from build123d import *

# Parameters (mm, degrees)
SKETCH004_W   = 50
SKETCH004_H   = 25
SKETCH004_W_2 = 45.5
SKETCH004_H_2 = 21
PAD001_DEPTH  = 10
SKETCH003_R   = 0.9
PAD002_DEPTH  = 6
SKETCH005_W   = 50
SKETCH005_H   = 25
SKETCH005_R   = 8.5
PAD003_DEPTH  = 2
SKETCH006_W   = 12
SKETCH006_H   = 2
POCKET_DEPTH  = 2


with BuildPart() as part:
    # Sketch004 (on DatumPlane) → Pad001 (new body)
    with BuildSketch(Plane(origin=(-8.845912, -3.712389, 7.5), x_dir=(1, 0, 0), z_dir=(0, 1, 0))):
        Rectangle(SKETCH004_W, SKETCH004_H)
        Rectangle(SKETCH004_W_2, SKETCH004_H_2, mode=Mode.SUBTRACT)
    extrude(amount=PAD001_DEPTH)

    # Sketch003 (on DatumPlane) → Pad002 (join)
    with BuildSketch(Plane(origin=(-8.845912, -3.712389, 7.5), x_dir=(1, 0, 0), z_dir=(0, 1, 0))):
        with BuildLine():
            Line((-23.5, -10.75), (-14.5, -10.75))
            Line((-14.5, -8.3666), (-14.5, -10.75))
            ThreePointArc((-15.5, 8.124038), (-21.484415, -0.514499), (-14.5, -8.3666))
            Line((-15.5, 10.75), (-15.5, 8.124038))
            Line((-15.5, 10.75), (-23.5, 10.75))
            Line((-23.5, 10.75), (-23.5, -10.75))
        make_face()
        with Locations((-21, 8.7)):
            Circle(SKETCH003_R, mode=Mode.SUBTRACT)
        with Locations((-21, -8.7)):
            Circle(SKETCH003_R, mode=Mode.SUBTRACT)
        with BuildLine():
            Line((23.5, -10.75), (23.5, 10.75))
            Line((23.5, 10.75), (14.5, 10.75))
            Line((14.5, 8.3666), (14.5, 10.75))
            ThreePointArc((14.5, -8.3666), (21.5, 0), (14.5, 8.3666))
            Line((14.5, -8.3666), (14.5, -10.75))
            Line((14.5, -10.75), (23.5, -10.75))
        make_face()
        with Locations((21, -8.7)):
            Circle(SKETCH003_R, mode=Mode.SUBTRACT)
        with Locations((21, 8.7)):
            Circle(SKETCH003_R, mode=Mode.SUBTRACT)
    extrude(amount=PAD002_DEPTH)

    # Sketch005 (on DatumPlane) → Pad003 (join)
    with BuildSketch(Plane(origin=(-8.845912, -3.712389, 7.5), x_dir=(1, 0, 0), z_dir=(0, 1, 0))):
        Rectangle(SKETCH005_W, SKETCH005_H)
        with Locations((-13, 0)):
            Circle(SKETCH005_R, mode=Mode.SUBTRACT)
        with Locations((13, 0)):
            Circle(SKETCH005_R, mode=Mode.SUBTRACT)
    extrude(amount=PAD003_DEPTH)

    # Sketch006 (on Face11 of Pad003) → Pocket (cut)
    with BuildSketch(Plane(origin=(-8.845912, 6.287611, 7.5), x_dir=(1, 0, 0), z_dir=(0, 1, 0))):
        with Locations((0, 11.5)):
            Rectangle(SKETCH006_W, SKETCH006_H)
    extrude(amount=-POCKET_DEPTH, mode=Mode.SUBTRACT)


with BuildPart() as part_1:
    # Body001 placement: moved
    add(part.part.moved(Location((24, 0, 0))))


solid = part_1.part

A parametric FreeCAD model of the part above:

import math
import FreeCAD as App
import Part
import Sketcher
from FreeCAD import Vector
Q = App.Units.Quantity

doc = App.newDocument("Part")
body = doc.addObject("PartDesign::Body", "Body")

# Sketch on XZ plane
sketch1 = doc.addObject("Sketcher::SketchObject", "Sketch")
body.addObject(sketch1)
sketch1.AttachmentSupport = (doc.XZ_Plane, [""])
sketch1.MapMode = "FlatFace"
sketch1.AttachmentOffset = App.Placement(Vector(0, 0, 3.712389), App.Rotation())
sketch1.addGeometry([
    Part.LineSegment(Vector(-34, -5, 0), Vector(-34, 20, 0)),  # 0
    Part.LineSegment(Vector(-34, 20, 0), Vector(16, 20, 0)),  # 1
    Part.LineSegment(Vector(16, 20, 0), Vector(16, -5, 0)),  # 2
    Part.LineSegment(Vector(16, -5, 0), Vector(-34, -5, 0)),  # 3
    Part.LineSegment(Vector(14, 18, 0), Vector(-32, 18, 0)),  # 4
    Part.LineSegment(Vector(-32, 18, 0), Vector(-32, -3, 0)),  # 5
    Part.LineSegment(Vector(-32, -3, 0), Vector(14, -3, 0)),  # 6
    Part.LineSegment(Vector(14, -3, 0), Vector(14, 18, 0)),  # 7
], False)
sketch1.addConstraint([
    Sketcher.Constraint("Coincident", 0, 2, 1, 1),
    Sketcher.Constraint("Coincident", 1, 2, 2, 1),
    Sketcher.Constraint("Coincident", 2, 2, 3, 1),
    Sketcher.Constraint("Coincident", 3, 2, 0, 1),
    Sketcher.Constraint("Coincident", 4, 2, 5, 1),
    Sketcher.Constraint("Coincident", 5, 2, 6, 1),
    Sketcher.Constraint("Coincident", 6, 2, 7, 1),
    Sketcher.Constraint("Coincident", 7, 2, 4, 1),
    Sketcher.Constraint("Vertical", 0),
    Sketcher.Constraint("Horizontal", 1),
    Sketcher.Constraint("Vertical", 2),
    Sketcher.Constraint("Horizontal", 3),
    Sketcher.Constraint("Horizontal", 4),
    Sketcher.Constraint("Vertical", 5),
    Sketcher.Constraint("Horizontal", 6),
    Sketcher.Constraint("Vertical", 7),
    Sketcher.Constraint("DistanceX", 1, 1, 1, 2, Q("50 mm")),
    Sketcher.Constraint("DistanceY", 0, 1, 0, 2, Q("25 mm")),
    Sketcher.Constraint("DistanceY", 5, 2, 5, 1, Q("21 mm")),
    Sketcher.Constraint("DistanceX", 4, 2, 4, 1, Q("45.5 mm")),
    Sketcher.Constraint("DistanceY", -1, 1, 0, 2, Q("20 mm")),
    Sketcher.Constraint("DistanceY", -1, 1, 4, 2, Q("18 mm")),
    Sketcher.Constraint("DistanceX", 0, 2, 4, 2, Q("2.25 mm")),
    Sketcher.Constraint("DistanceX", 0, 2, -1, 1, Q("33.845912 mm")),
])
pad1 = doc.addObject("PartDesign::Pad", "Pad")
body.addObject(pad1)
pad1.Profile = sketch1
pad1.Length = 10
pad1.Reversed = True

# Sketch on XZ plane
sketch2 = doc.addObject("Sketcher::SketchObject", "Sketch001")
body.addObject(sketch2)
sketch2.AttachmentSupport = (doc.XZ_Plane, [""])
sketch2.MapMode = "FlatFace"
sketch2.AttachmentOffset = App.Placement(Vector(0, 0, 3.712389), App.Rotation())
sketch2.addGeometry([
    Part.LineSegment(Vector(-32.3, 18.2, 0), Vector(-23.3, 18.2, 0)),  # 0
    Part.LineSegment(Vector(-23.3, 18.2, 0), Vector(-23.3, 15.9, 0)),  # 1
    Part.ArcOfCircle(Part.Circle(Vector(-21.8, 7.5, 0), Vector(0, 0, 1), 8.5), math.radians(100), math.radians(253)),  # 2
    Part.LineSegment(Vector(-24.3, -0.6, 0), Vector(-24.3, -3.2, 0)),  # 3
    Part.LineSegment(Vector(-24.3, -3.2, 0), Vector(-32.3, -3.2, 0)),  # 4
    Part.LineSegment(Vector(-32.3, -3.2, 0), Vector(-32.3, 18.2, 0)),  # 5
    Part.Circle(Vector(-29.8, 16.2, 0), Vector(0, 0, 1), 0.9),  # 6
    Part.Circle(Vector(-29.8, -1.2, 0), Vector(0, 0, 1), 0.9),  # 7
    Part.LineSegment(Vector(14.7, 18.2, 0), Vector(14.7, -3.2, 0)),  # 8
    Part.LineSegment(Vector(14.7, -3.2, 0), Vector(5.7, -3.2, 0)),  # 9
    Part.LineSegment(Vector(5.7, -3.2, 0), Vector(5.7, -0.9, 0)),  # 10
    Part.ArcOfCircle(Part.Circle(Vector(4.2, 7.5, 0), Vector(0, 0, 1), 8.5), math.radians(-80), math.radians(80)),  # 11
    Part.LineSegment(Vector(5.7, 15.9, 0), Vector(5.7, 18.2, 0)),  # 12
    Part.LineSegment(Vector(5.7, 18.2, 0), Vector(14.7, 18.2, 0)),  # 13
    Part.Circle(Vector(12.2, 16.2, 0), Vector(0, 0, 1), 0.9),  # 14
    Part.Circle(Vector(12.2, -1.2, 0), Vector(0, 0, 1), 0.9),  # 15
], False)
sketch2.addConstraint([
    Sketcher.Constraint("Coincident", 0, 2, 1, 1),
    Sketcher.Constraint("Coincident", 1, 2, 2, 1),
    Sketcher.Constraint("Coincident", 2, 2, 3, 1),
    Sketcher.Constraint("Coincident", 3, 2, 4, 1),
    Sketcher.Constraint("Coincident", 4, 2, 5, 1),
    Sketcher.Constraint("Coincident", 5, 2, 0, 1),
    Sketcher.Constraint("Coincident", 8, 2, 9, 1),
    Sketcher.Constraint("Coincident", 9, 2, 10, 1),
    Sketcher.Constraint("Coincident", 10, 2, 11, 1),
    Sketcher.Constraint("Coincident", 11, 2, 12, 1),
    Sketcher.Constraint("Coincident", 12, 2, 13, 1),
    Sketcher.Constraint("Coincident", 13, 2, 8, 1),
    Sketcher.Constraint("Horizontal", 0),
    Sketcher.Constraint("Vertical", 1),
    Sketcher.Constraint("Vertical", 3),
    Sketcher.Constraint("Horizontal", 4),
    Sketcher.Constraint("Vertical", 5),
    Sketcher.Constraint("Vertical", 8),
    Sketcher.Constraint("Horizontal", 9),
    Sketcher.Constraint("Vertical", 10),
    Sketcher.Constraint("Vertical", 12),
    Sketcher.Constraint("Horizontal", 13),
    Sketcher.Constraint("Equal", 6, 7),
    Sketcher.Constraint("Equal", 2, 11),
    Sketcher.Constraint("Equal", 7, 14),
    Sketcher.Constraint("Equal", 14, 15),
    Sketcher.Constraint("Horizontal", 2, 3, 11, 3),
    Sketcher.Constraint("Horizontal", 6, 3, 14, 3),
    Sketcher.Constraint("Horizontal", 7, 3, 15, 3),
    Sketcher.Constraint("Horizontal", 4, 2, 8, 2),
    Sketcher.Constraint("Horizontal", 1, 2, 11, 2),
    Sketcher.Constraint("Horizontal", 5, 2, 12, 2),
    Sketcher.Constraint("Vertical", 6, 3, 7, 3),
    Sketcher.Constraint("Vertical", 14, 3, 15, 3),
    Sketcher.Constraint("Vertical", 10, 2, 11, 2),
    Sketcher.Constraint("Equal", 0, 9),
    Sketcher.Constraint("Equal", 1, 10),
    Sketcher.Constraint("Diameter", 6, Q("1.8 mm")),
    Sketcher.Constraint("Radius", 2, Q("8.499999 mm")),
    Sketcher.Constraint("DistanceX", 0, 1, 0, 2, Q("9 mm")),
    Sketcher.Constraint("DistanceX", 4, 2, 4, 1, Q("8 mm")),
    Sketcher.Constraint("DistanceY", 5, 1, 5, 2, Q("21.5 mm")),
    Sketcher.Constraint("DistanceX", 6, 3, 2, 3, Q("7.999999 mm")),
    Sketcher.Constraint("DistanceX", 2, 3, 11, 3, Q("26.000001 mm")),
    Sketcher.Constraint("DistanceX", 11, 3, 14, 3, Q("8 mm")),
    Sketcher.Constraint("DistanceX", 3, 2, 8, 2, Q("39 mm")),
    Sketcher.Constraint("DistanceY", -1, 1, 2, 3, Q("7.5 mm")),
    Sketcher.Constraint("DistanceY", -1, 1, 6, 3, Q("16.2 mm")),
    Sketcher.Constraint("DistanceY", 7, 3, -1, 1, Q("1.2 mm")),
    Sketcher.Constraint("DistanceX", 6, 3, -1, 1, Q("29.845912 mm")),
])
pad2 = doc.addObject("PartDesign::Pad", "Pad001")
body.addObject(pad2)
pad2.Profile = sketch2
pad2.Length = 6
pad2.Reversed = True

# Sketch on XZ plane
sketch3 = doc.addObject("Sketcher::SketchObject", "Sketch002")
body.addObject(sketch3)
sketch3.AttachmentSupport = (doc.XZ_Plane, [""])
sketch3.MapMode = "FlatFace"
sketch3.AttachmentOffset = App.Placement(Vector(0, 0, 3.712389), App.Rotation())
sketch3.addGeometry([
    Part.LineSegment(Vector(-34, -5, 0), Vector(-34, 20, 0)),  # 0
    Part.LineSegment(Vector(-34, 20, 0), Vector(16, 20, 0)),  # 1
    Part.LineSegment(Vector(16, 20, 0), Vector(16, -5, 0)),  # 2
    Part.LineSegment(Vector(16, -5, 0), Vector(-34, -5, 0)),  # 3
    Part.Circle(Vector(-22, 8, 0), Vector(0, 0, 1), 8),  # 4
    Part.Circle(Vector(4, 8, 0), Vector(0, 0, 1), 8),  # 5
], False)
sketch3.addConstraint([
    Sketcher.Constraint("Coincident", 0, 2, 1, 1),
    Sketcher.Constraint("Coincident", 1, 2, 2, 1),
    Sketcher.Constraint("Coincident", 2, 2, 3, 1),
    Sketcher.Constraint("Coincident", 3, 2, 0, 1),
    Sketcher.Constraint("Vertical", 0),
    Sketcher.Constraint("Horizontal", 1),
    Sketcher.Constraint("Vertical", 2),
    Sketcher.Constraint("Horizontal", 3),
    Sketcher.Constraint("Equal", 4, 5),
    Sketcher.Constraint("Horizontal", 4, 3, 5, 3),
    Sketcher.Constraint("Diameter", 4, Q("17 mm")),
    Sketcher.Constraint("DistanceX", 1, 1, 1, 2, Q("50 mm")),
    Sketcher.Constraint("DistanceY", 0, 1, 0, 2, Q("25 mm")),
    Sketcher.Constraint("DistanceY", -1, 1, 0, 2, Q("20 mm")),
    Sketcher.Constraint("DistanceX", 4, 3, 5, 3, Q("26 mm")),
    Sketcher.Constraint("DistanceX", 0, 2, 4, 3, Q("12 mm")),
    Sketcher.Constraint("DistanceY", -1, 1, 4, 3, Q("7.5 mm")),
    Sketcher.Constraint("DistanceX", 4, 3, -1, 1, Q("21.845912 mm")),
])
pad3 = doc.addObject("PartDesign::Pad", "Pad002")
body.addObject(pad3)
pad3.Profile = sketch3
pad3.Length = 2
pad3.Reversed = True

# Sketch on XZ plane
sketch4 = doc.addObject("Sketcher::SketchObject", "Sketch003")
body.addObject(sketch4)
sketch4.AttachmentSupport = (doc.XZ_Plane, [""])
sketch4.MapMode = "FlatFace"
sketch4.AttachmentOffset = App.Placement(Vector(0, 0, -6.287611), App.Rotation())
sketch4.addGeometry([
    Part.LineSegment(Vector(-14.8, -5, 0), Vector(-14.8, -3, 0)),
    Part.LineSegment(Vector(-14.8, -3, 0), Vector(-2.8, -3, 0)),
    Part.LineSegment(Vector(-2.8, -3, 0), Vector(-2.8, -5, 0)),
    Part.LineSegment(Vector(-2.8, -5, 0), Vector(-14.8, -5, 0)),
], False)
sketch4.addConstraint([
    Sketcher.Constraint("Coincident", 0, 2, 1, 1),
    Sketcher.Constraint("Coincident", 1, 2, 2, 1),
    Sketcher.Constraint("Coincident", 2, 2, 3, 1),
    Sketcher.Constraint("Coincident", 3, 2, 0, 1),
    Sketcher.Constraint("Vertical", 0),
    Sketcher.Constraint("Horizontal", 1),
    Sketcher.Constraint("Vertical", 2),
    Sketcher.Constraint("Horizontal", 3),
    Sketcher.Constraint("DistanceX", 1, 1, 1, 2, Q("12 mm")),
    Sketcher.Constraint("DistanceY", 0, 1, 0, 2, Q("2 mm")),
    Sketcher.Constraint("DistanceY", 0, 2, -1, 1, Q("3 mm")),
    Sketcher.Constraint("DistanceX", 0, 2, -1, 1, Q("14.845912 mm")),
])
pocket1 = doc.addObject("PartDesign::Pocket", "Pocket")
body.addObject(pocket1)
pocket1.Profile = sketch4
pocket1.Length = 2
pocket1.Reversed = True
body2 = doc.addObject("PartDesign::Body", "Body001")
doc.recompute()

body.Placement = App.Placement(Vector(24, 0, 0), App.Rotation(Vector(0, 0, 1), 0))
boolean = doc.addObject("PartDesign::Boolean", "Boolean")
body2.addObject(boolean)
boolean.Type = "Fuse"
boolean.addObjects([body])

doc.recompute()
